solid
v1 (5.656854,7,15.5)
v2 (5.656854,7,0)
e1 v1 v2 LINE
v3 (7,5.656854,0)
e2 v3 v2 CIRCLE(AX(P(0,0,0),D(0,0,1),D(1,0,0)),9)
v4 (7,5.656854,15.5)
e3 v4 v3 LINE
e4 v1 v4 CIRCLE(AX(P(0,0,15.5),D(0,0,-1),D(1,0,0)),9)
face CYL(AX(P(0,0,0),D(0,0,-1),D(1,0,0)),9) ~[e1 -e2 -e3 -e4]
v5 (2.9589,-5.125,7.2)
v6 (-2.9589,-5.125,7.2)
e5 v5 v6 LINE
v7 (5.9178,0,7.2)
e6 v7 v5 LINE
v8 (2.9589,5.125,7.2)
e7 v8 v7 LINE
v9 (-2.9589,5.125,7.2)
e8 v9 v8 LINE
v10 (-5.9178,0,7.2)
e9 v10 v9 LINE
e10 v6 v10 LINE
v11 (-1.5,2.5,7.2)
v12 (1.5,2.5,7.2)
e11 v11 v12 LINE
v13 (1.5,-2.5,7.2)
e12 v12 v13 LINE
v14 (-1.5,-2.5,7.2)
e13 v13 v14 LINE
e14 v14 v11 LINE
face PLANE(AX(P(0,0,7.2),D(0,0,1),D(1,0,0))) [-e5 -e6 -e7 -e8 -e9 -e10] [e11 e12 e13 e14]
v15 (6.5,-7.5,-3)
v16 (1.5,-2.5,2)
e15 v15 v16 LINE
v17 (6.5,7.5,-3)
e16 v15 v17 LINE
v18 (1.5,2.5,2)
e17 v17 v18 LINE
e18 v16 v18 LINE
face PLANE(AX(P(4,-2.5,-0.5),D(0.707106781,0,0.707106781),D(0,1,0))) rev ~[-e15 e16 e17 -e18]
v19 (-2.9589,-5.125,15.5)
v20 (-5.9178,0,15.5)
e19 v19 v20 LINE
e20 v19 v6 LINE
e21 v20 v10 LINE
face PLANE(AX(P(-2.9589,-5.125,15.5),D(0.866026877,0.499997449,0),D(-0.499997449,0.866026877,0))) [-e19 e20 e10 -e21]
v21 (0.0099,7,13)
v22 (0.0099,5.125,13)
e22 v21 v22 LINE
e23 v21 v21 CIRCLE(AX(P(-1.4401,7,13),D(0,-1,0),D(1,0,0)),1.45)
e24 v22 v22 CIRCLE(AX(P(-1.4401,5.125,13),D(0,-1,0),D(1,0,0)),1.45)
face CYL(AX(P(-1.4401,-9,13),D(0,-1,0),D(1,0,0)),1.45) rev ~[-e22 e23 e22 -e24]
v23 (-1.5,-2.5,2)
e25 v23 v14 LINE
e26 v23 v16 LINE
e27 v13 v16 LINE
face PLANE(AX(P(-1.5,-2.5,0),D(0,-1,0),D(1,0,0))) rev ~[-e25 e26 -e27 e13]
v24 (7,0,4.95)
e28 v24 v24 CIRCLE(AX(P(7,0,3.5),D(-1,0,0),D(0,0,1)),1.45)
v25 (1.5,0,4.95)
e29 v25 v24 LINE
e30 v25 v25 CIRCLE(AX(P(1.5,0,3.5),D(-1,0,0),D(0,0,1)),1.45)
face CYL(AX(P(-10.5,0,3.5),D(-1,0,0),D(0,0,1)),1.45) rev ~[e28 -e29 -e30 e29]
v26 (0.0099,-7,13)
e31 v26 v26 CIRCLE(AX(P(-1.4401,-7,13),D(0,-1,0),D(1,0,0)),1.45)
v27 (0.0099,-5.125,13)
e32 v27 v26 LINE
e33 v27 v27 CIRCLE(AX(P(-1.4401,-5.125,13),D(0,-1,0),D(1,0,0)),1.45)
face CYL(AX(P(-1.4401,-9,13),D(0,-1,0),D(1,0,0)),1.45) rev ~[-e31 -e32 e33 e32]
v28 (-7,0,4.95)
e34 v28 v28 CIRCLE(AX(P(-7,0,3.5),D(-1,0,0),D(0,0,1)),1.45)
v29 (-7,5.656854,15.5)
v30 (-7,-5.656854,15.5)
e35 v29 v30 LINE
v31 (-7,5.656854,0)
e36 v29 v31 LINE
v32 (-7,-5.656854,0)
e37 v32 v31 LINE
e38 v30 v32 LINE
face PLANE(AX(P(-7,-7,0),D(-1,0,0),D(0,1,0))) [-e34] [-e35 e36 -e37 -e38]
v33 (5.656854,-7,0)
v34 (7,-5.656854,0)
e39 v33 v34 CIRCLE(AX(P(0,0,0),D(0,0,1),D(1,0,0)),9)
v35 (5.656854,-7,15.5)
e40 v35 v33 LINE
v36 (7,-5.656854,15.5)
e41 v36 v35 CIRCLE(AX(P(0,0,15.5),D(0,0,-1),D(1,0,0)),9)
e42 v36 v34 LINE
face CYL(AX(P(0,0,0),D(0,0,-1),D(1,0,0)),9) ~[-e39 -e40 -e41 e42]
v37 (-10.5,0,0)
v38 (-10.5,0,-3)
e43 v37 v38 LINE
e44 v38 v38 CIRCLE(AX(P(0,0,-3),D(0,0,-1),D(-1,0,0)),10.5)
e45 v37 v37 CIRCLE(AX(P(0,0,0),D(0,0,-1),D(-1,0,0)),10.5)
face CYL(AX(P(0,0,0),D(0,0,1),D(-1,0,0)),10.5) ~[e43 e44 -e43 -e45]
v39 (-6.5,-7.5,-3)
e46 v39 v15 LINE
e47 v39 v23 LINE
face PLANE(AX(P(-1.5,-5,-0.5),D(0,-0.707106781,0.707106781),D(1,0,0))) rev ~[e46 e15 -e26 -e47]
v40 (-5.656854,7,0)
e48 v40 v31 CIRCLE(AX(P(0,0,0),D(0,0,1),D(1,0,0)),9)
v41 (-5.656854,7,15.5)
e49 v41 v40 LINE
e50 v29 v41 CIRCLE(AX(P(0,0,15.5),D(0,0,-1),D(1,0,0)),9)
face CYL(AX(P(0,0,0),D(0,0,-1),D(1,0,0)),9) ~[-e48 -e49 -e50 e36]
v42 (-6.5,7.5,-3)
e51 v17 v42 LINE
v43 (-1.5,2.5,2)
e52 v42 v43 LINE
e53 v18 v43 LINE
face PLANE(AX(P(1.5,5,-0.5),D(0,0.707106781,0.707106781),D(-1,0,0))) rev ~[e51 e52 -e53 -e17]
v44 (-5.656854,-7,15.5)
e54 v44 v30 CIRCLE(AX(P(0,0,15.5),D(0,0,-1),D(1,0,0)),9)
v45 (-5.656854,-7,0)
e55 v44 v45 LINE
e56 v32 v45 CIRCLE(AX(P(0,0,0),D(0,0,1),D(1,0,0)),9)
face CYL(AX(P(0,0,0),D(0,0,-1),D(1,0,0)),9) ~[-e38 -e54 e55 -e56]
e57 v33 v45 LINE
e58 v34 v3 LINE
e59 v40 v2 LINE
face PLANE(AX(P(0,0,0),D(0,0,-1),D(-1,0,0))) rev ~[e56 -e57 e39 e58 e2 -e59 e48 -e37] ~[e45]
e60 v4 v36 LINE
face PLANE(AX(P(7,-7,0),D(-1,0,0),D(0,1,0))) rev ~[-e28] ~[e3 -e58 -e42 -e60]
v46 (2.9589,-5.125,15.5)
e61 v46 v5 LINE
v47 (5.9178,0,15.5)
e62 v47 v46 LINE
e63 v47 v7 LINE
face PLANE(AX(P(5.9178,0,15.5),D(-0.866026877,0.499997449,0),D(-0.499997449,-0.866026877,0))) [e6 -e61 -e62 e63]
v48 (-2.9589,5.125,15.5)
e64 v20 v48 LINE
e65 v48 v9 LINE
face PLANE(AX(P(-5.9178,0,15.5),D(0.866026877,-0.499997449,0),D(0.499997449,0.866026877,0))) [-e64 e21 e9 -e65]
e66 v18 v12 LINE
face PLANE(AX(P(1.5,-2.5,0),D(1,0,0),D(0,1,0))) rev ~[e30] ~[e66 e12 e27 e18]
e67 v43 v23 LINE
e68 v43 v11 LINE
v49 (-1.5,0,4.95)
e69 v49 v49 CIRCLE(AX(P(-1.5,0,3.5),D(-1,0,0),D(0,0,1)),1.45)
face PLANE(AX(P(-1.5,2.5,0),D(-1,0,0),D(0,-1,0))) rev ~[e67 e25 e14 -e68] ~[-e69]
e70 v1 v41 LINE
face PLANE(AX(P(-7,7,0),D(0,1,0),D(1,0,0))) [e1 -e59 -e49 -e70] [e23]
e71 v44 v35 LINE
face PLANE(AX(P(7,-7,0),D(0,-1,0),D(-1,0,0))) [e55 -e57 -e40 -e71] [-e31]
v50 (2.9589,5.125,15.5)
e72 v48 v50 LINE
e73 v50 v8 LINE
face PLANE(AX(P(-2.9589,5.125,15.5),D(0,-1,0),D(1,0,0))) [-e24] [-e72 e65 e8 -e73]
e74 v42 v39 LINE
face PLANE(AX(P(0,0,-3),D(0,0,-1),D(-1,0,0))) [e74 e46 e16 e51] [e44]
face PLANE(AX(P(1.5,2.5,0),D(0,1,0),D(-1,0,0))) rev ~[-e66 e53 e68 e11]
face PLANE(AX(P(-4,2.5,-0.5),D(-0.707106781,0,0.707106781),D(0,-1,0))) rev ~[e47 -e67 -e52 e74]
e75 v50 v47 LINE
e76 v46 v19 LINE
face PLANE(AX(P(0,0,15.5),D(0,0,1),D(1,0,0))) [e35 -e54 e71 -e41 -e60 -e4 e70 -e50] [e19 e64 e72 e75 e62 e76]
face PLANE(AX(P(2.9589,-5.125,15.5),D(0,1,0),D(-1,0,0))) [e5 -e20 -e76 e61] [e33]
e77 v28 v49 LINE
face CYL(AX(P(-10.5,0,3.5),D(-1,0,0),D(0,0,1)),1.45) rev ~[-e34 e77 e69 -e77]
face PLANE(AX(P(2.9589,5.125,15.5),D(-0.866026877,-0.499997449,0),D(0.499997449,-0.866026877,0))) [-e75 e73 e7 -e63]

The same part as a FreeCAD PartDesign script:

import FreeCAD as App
import Part
import Sketcher
Q = App.Units.Quantity


def edges_at(feature, points):
    """Names of the edges that pass closest to the given points."""
    edges = feature.Shape.Edges
    near = lambda p: min(range(len(edges)), key=lambda i: edges[i].distToShape(Part.Vertex(*p))[0])
    return sorted({f"Edge{near(p) + 1}" for p in points})


def add_polygon(sketch, points):
    """Adds a closed chain of lines whose ends are joined by coincident constraints."""
    first, n = sketch.GeometryCount, len(points)
    for a, b in zip(points, points[1:] + points[:1]):
        sketch.addGeometry(Part.LineSegment(App.Vector(*a, 0), App.Vector(*b, 0)), False)
    for i in range(n):
        sketch.addConstraint(Sketcher.Constraint("Coincident", first + i, 2, first + (i + 1) % n, 1))

doc = App.newDocument("Part")
body = doc.addObject("PartDesign::Body", "Body")

sketch1 = doc.addObject("Sketcher::SketchObject", "Sketch")
body.addObject(sketch1)
sketch1.AttachmentSupport = (doc.XY_Plane, [""])
sketch1.MapMode = "FlatFace"
sketch1.addGeometry(Part.Circle(App.Vector(0, 0, 0), App.Vector(0, 0, 1), 9), False)
sketch1.addConstraint([
    Sketcher.Constraint("Coincident", 0, 3, -1, 1),
    Sketcher.Constraint("Diameter", 0, Q("18 mm")),
])
pad1 = doc.addObject("PartDesign::Pad", "Pad")
body.addObject(pad1)
pad1.Profile = sketch1
pad1.Length = 15.5

sketch2 = doc.addObject("Sketcher::SketchObject", "Sketch001")
body.addObject(sketch2)
sketch2.AttachmentSupport = (doc.XY_Plane, [""])
sketch2.MapMode = "FlatFace"
add_polygon(sketch2, [(1.5, 2.5), (1.5, -2.5), (-1.5, -2.5), (-1.5, 2.5)])
sketch2.addConstraint([
    Sketcher.Constraint("Vertical", 0),
    Sketcher.Constraint("Horizontal", 1),
    Sketcher.Constraint("Vertical", 2),
    Sketcher.Constraint("Horizontal", 3),
    Sketcher.Constraint("Symmetric", 0, 2, 2, 2, -1, 1),
    Sketcher.Constraint("DistanceX", 1, 2, 1, 1, Q("3 mm")),
    Sketcher.Constraint("DistanceY", 0, 2, 0, 1, Q("5 mm")),
])
pocket1 = doc.addObject("PartDesign::Pocket", "Pocket")
body.addObject(pocket1)
pocket1.Profile = sketch2
pocket1.Length = 10
pocket1.Reversed = True

sketch3 = doc.addObject("Sketcher::SketchObject", "Sketch002")
body.addObject(sketch3)
sketch3.AttachmentSupport = (doc.XY_Plane, [""])
sketch3.MapMode = "FlatFace"
sketch3.AttachmentOffset = App.Placement(App.Vector(0, 0, 15.5), App.Rotation())
add_polygon(sketch3, [(5.9178, 0), (2.9589, 5.125), (-2.9589, 5.125), (-5.9178, 0), (-2.9589, -5.125), (2.9589, -5.125)])
sketch3.addConstraint([
    Sketcher.Constraint("Horizontal", 1),
    Sketcher.Constraint("Horizontal", 4),
    Sketcher.Constraint("Symmetric", 0, 2, 3, 2, -1, 1),
    Sketcher.Constraint("Symmetric", 2, 2, 5, 2, -1, 1),
    Sketcher.Constraint("PointOnObject", 2, 2, -1),
    Sketcher.Constraint("Parallel", 2, 5),
    Sketcher.Constraint("Vertical", 1, 2, 3, 2),
    Sketcher.Constraint("Angle", 0, Q("119.9998 deg")),
    Sketcher.Constraint("DistanceY", 3, 2, 1, 2, Q("10.25 mm")),
    Sketcher.Constraint("DistanceX", 1, 2, 1, 1, Q("5.9178 mm")),
])
pocket2 = doc.addObject("PartDesign::Pocket", "Pocket001")
body.addObject(pocket2)
pocket2.Profile = sketch3
pocket2.Length = 8.3

sketch4 = doc.addObject("Sketcher::SketchObject", "Sketch003")
body.addObject(sketch4)
sketch4.AttachmentSupport = (doc.XZ_Plane, [""])
sketch4.MapMode = "FlatFace"
sketch4.AttachmentOffset = App.Placement(App.Vector(0, 0, 9), App.Rotation())
sketch4.addGeometry(Part.Circle(App.Vector(-1.4401, 13, 0), App.Vector(0, 0, 1), 1.45), False)
sketch4.addConstraint([
    Sketcher.Constraint("Diameter", 0, Q("2.9 mm")),
    Sketcher.Constraint("DistanceY", -1, 1, 0, 3, Q("13 mm")),
    Sketcher.Constraint("DistanceX", 0, 3, -1, 1, Q("1.44 mm")),
])
pocket3 = doc.addObject("PartDesign::Pocket", "Pocket002")
body.addObject(pocket3)
pocket3.Profile = sketch4
pocket3.Type = "ThroughAll"
pocket3.Midplane = True

sketch5 = doc.addObject("Sketcher::SketchObject", "Sketch004")
body.addObject(sketch5)
sketch5.AttachmentSupport = (doc.YZ_Plane, [""])
sketch5.MapMode = "FlatFace"
sketch5.AttachmentOffset = App.Placement(App.Vector(0, 0, -10.5), App.Rotation())
sketch5.addGeometry(Part.Circle(App.Vector(0, 3.5, 0), App.Vector(0, 0, 1), 1.45), False)
sketch5.addConstraint([
    Sketcher.Constraint("PointOnObject", 0, 3, -2),
    Sketcher.Constraint("Diameter", 0, Q("2.9 mm")),
    Sketcher.Constraint("DistanceY", -1, 1, 0, 3, Q("3.5 mm")),
])
pocket4 = doc.addObject("PartDesign::Pocket", "Pocket003")
body.addObject(pocket4)
pocket4.Profile = sketch5
pocket4.Length = 22
pocket4.Reversed = True

sketch6 = doc.addObject("Sketcher::SketchObject", "Sketch005")
body.addObject(sketch6)
sketch6.AttachmentSupport = (doc.XY_Plane, [""])
sketch6.MapMode = "FlatFace"
add_polygon(sketch6, [(-10, -10.5), (-10, 10.5), (10, 10.5), (10, -10.5)])
add_polygon(sketch6, [(-7, 7), (-7, -7), (7, -7), (7, 7)])
sketch6.addConstraint([
    Sketcher.Constraint("Vertical", 0),
    Sketcher.Constraint("Horizontal", 1),
    Sketcher.Constraint("Vertical", 2),
    Sketcher.Constraint("Horizontal", 3),
    Sketcher.Constraint("Vertical", 4),
    Sketcher.Constraint("Horizontal", 5),
    Sketcher.Constraint("Vertical", 6),
    Sketcher.Constraint("Horizontal", 7),
    Sketcher.Constraint("Symmetric", 0, 2, 2, 2, -1, 1),
    Sketcher.Constraint("Symmetric", 4, 2, 6, 2, -1, 1),
    Sketcher.Constraint("Equal", 7, 4),
    Sketcher.Constraint("DistanceX", 4, 2, -1, 1, Q("7 mm")),
    Sketcher.Constraint("DistanceX", 3, 2, 4, 2, Q("3 mm")),
    Sketcher.Constraint("DistanceY", 0, 1, 0, 2, Q("21 mm")),
])
pocket5 = doc.addObject("PartDesign::Pocket", "Pocket004")
body.addObject(pocket5)
pocket5.Profile = sketch6
pocket5.Length = 16.25
pocket5.Reversed = True

sketch7 = doc.addObject("Sketcher::SketchObject", "Sketch006")
body.addObject(sketch7)
sketch7.AttachmentSupport = (doc.XY_Plane, [""])
sketch7.MapMode = "FlatFace"
sketch7.addGeometry(Part.Circle(App.Vector(0, 0, 0), App.Vector(0, 0, 1), 10.5), False)
add_polygon(sketch7, [(-1.5, -2.5), (1.5, -2.5), (1.5, 2.5), (-1.5, 2.5)])
sketch7.addConstraint([
    Sketcher.Constraint("Horizontal", 1),
    Sketcher.Constraint("Vertical", 2),
    Sketcher.Constraint("Horizontal", 3),
    Sketcher.Constraint("Vertical", 4),
    Sketcher.Constraint("Coincident", 0, 3, -1, 1),
    Sketcher.Constraint("Symmetric", 1, 2, 3, 2, -1, 1),
    Sketcher.Constraint("Diameter", 0, Q("21 mm")),
    Sketcher.Constraint("DistanceX", 1, 1, 1, 2, Q("3 mm")),
    Sketcher.Constraint("DistanceY", 2, 1, 2, 2, Q("5 mm")),
])
pad2 = doc.addObject("PartDesign::Pad", "Pad001")
body.addObject(pad2)
pad2.Profile = sketch7
pad2.Length = 3
pad2.Reversed = True
doc.recompute()

chamfer = doc.addObject("PartDesign::Chamfer", "Chamfer")
body.addObject(chamfer)
chamfer.Base = (pad2, edges_at(pad2, [
    (-1.5, 0, -3),
    (1.5, 0, -3),
    (0, 2.5, -3),
    (0, -2.5, -3),
]))
chamfer.Size = 5

doc.recompute()
